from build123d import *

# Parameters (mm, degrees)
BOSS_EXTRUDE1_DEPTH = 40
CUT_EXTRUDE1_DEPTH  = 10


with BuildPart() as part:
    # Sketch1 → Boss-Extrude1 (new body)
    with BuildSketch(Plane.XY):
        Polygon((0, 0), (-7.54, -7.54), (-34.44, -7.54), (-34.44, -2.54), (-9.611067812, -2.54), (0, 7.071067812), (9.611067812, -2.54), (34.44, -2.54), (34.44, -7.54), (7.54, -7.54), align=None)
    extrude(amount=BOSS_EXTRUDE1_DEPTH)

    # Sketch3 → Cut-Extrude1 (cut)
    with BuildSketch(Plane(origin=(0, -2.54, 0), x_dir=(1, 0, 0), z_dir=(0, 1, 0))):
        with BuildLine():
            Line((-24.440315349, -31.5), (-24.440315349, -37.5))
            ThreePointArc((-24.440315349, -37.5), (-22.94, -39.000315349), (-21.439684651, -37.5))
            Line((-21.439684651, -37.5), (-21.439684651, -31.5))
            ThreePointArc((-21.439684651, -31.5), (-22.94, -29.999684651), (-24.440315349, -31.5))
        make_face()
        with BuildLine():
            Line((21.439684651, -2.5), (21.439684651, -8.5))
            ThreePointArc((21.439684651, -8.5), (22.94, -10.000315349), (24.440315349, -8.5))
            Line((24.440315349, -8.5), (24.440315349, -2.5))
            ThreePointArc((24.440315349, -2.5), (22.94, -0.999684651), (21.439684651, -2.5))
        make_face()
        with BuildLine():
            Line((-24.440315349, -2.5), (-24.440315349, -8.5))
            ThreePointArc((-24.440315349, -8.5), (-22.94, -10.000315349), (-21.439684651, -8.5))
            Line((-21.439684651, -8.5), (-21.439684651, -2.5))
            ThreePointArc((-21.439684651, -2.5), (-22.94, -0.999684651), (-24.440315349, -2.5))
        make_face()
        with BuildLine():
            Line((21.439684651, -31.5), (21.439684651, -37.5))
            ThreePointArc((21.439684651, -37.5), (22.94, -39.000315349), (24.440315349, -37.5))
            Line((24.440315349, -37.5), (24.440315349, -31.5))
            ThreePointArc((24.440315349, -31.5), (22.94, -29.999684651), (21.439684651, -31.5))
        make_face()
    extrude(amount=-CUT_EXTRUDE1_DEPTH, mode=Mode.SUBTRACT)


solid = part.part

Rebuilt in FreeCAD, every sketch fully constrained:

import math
import FreeCAD as App
import Part
import Sketcher
Q = App.Units.Quantity

doc = App.newDocument("Part")
body = doc.addObject("PartDesign::Body", "Body")

# Sketch on XY plane
sketch1 = body.newObject("Sketcher::SketchObject", "Sketch")
sketch1.AttachmentSupport = (doc.getObject("XY_Plane"), [""])
sketch1.MapMode = "FlatFace"
sketch1.addGeometry(Part.LineSegment(App.Vector(-8, -8, 0), App.Vector(0, 0, 0)), False)
sketch1.addGeometry(Part.LineSegment(App.Vector(0, 0, 0), App.Vector(8, -8, 0)), False)
sketch1.addGeometry(Part.LineSegment(App.Vector(8, -8, 0), App.Vector(34, -8, 0)), False)
sketch1.addGeometry(Part.LineSegment(App.Vector(34, -8, 0), App.Vector(34, -3, 0)), False)
sketch1.addGeometry(Part.LineSegment(App.Vector(34, -3, 0), App.Vector(10, -3, 0)), False)
sketch1.addGeometry(Part.LineSegment(App.Vector(10, -3, 0), App.Vector(0, 7, 0)), False)
sketch1.addGeometry(Part.LineSegment(App.Vector(0, 7, 0), App.Vector(-10, -3, 0)), False)
sketch1.addGeometry(Part.LineSegment(App.Vector(-10, -3, 0), App.Vector(-34, -3, 0)), False)
sketch1.addGeometry(Part.LineSegment(App.Vector(-34, -3, 0), App.Vector(-34, -8, 0)), False)
sketch1.addGeometry(Part.LineSegment(App.Vector(-34, -8, 0), App.Vector(-8, -8, 0)), False)
sketch1.addConstraint(Sketcher.Constraint("Coincident", 0, 2, 1, 1))
sketch1.addConstraint(Sketcher.Constraint("Coincident", 1, 2, 2, 1))
sketch1.addConstraint(Sketcher.Constraint("Coincident", 2, 2, 3, 1))
sketch1.addConstraint(Sketcher.Constraint("Coincident", 3, 2, 4, 1))
sketch1.addConstraint(Sketcher.Constraint("Coincident", 4, 2, 5, 1))
sketch1.addConstraint(Sketcher.Constraint("Coincident", 5, 2, 6, 1))
sketch1.addConstraint(Sketcher.Constraint("Coincident", 6, 2, 7, 1))
sketch1.addConstraint(Sketcher.Constraint("Coincident", 7, 2, 8, 1))
sketch1.addConstraint(Sketcher.Constraint("Coincident", 8, 2, 9, 1))
sketch1.addConstraint(Sketcher.Constraint("Coincident", 9, 2, 0, 1))
sketch1.addConstraint(Sketcher.Constraint("Horizontal", 2))
sketch1.addConstraint(Sketcher.Constraint("Vertical", 3))
sketch1.addConstraint(Sketcher.Constraint("Horizontal", 4))
sketch1.addConstraint(Sketcher.Constraint("Horizontal", 7))
sketch1.addConstraint(Sketcher.Constraint("Vertical", 8))
sketch1.addConstraint(Sketcher.Constraint("Horizontal", 9))
sketch1.addConstraint(Sketcher.Constraint("Coincident", 0, 2, -1, 1))
sketch1.addConstraint(Sketcher.Constraint("Symmetric", 4, 2, 6, 2, -2))
sketch1.addConstraint(Sketcher.Constraint("Symmetric", 2, 2, 8, 2, -2))
sketch1.addConstraint(Sketcher.Constraint("PointOnObject", 5, 2, -2))
sketch1.addConstraint(Sketcher.Constraint("Perpendicular", 0, 1))
sketch1.addConstraint(Sketcher.Constraint("Parallel", 1, 5))
sketch1.addConstraint(Sketcher.Constraint("Perpendicular", 5, 6))
sketch1.addConstraint(Sketcher.Constraint("DistanceY", 3, 1, 3, 2, Q("5 mm")))
sketch1.addConstraint(Sketcher.Constraint("DistanceX", 2, 1, 2, 2, Q("26.9 mm")))
sketch1.addConstraint(Sketcher.Constraint("DistanceX", -1, 1, 1, 2, Q("7.54 mm")))
sketch1.addConstraint(Sketcher.Constraint("DistanceX", 4, 2, 4, 1, Q("24.828932 mm")))
pad1 = body.newObject("PartDesign::Pad", "Pad")
pad1.Profile = sketch1
pad1.Length = 40

# Sketch on XZ plane
sketch2 = body.newObject("Sketcher::SketchObject", "Sketch001")
sketch2.AttachmentSupport = (doc.getObject("XZ_Plane"), [""])
sketch2.MapMode = "FlatFace"
sketch2.AttachmentOffset = App.Placement(App.Vector(0, 0, 2.54), App.Rotation())
sketch2.addGeometry(Part.LineSegment(App.Vector(-24.4, 31.5, 0), App.Vector(-24.4, 37.5, 0)), False)
sketch2.addGeometry(Part.ArcOfCircle(Part.Circle(App.Vector(-22.9, 37.5, 0), App.Vector(0, 0, 1), 1.5), math.radians(0), math.radians(180)), False)
sketch2.addGeometry(Part.LineSegment(App.Vector(-21.4, 37.5, 0), App.Vector(-21.4, 31.5, 0)), False)
sketch2.addGeometry(Part.ArcOfCircle(Part.Circle(App.Vector(-22.9, 31.5, 0), App.Vector(0, 0, 1), 1.5), math.radians(180), math.radians(360)), False)
sketch2.addGeometry(Part.LineSegment(App.Vector(21.4, 2.5, 0), App.Vector(21.4, 8.5, 0)), False)
sketch2.addGeometry(Part.ArcOfCircle(Part.Circle(App.Vector(22.9, 8.5, 0), App.Vector(0, 0, 1), 1.5), math.radians(0), math.radians(180)), False)
sketch2.addGeometry(Part.LineSegment(App.Vector(24.4, 8.5, 0), App.Vector(24.4, 2.5, 0)), False)
sketch2.addGeometry(Part.ArcOfCircle(Part.Circle(App.Vector(22.9, 2.5, 0), App.Vector(0, 0, 1), 1.5), math.radians(180), math.radians(360)), False)
sketch2.addGeometry(Part.LineSegment(App.Vector(-24.4, 2.5, 0), App.Vector(-24.4, 8.5, 0)), False)
sketch2.addGeometry(Part.ArcOfCircle(Part.Circle(App.Vector(-22.9, 8.5, 0), App.Vector(0, 0, 1), 1.5), math.radians(0), math.radians(180)), False)
sketch2.addGeometry(Part.LineSegment(App.Vector(-21.4, 8.5, 0), App.Vector(-21.4, 2.5, 0)), False)
sketch2.addGeometry(Part.ArcOfCircle(Part.Circle(App.Vector(-22.9, 2.5, 0), App.Vector(0, 0, 1), 1.5), math.radians(180), math.radians(360)), False)
sketch2.addGeometry(Part.LineSegment(App.Vector(21.4, 31.5, 0), App.Vector(21.4, 37.5, 0)), False)
sketch2.addGeometry(Part.ArcOfCircle(Part.Circle(App.Vector(22.9, 37.5, 0), App.Vector(0, 0, 1), 1.5), math.radians(0), math.radians(180)), False)
sketch2.addGeometry(Part.LineSegment(App.Vector(24.4, 37.5, 0), App.Vector(24.4, 31.5, 0)), False)
sketch2.addGeometry(Part.ArcOfCircle(Part.Circle(App.Vector(22.9, 31.5, 0), App.Vector(0, 0, 1), 1.5), math.radians(180), math.radians(360)), False)
sketch2.addConstraint(Sketcher.Constraint("Tangent", 0, 2, 1, 2))
sketch2.addConstraint(Sketcher.Constraint("Tangent", 1, 1, 2, 1))
sketch2.addConstraint(Sketcher.Constraint("Tangent", 2, 2, 3, 2))
sketch2.addConstraint(Sketcher.Constraint("Tangent", 3, 1, 0, 1))
sketch2.addConstraint(Sketcher.Constraint("Tangent", 4, 2, 5, 2))
sketch2.addConstraint(Sketcher.Constraint("Tangent", 5, 1, 6, 1))
sketch2.addConstraint(Sketcher.Constraint("Tangent", 6, 2, 7, 2))
sketch2.addConstraint(Sketcher.Constraint("Tangent", 7, 1, 4, 1))
sketch2.addConstraint(Sketcher.Constraint("Tangent", 8, 2, 9, 2))
sketch2.addConstraint(Sketcher.Constraint("Tangent", 9, 1, 10, 1))
sketch2.addConstraint(Sketcher.Constraint("Tangent", 10, 2, 11, 2))
sketch2.addConstraint(Sketcher.Constraint("Tangent", 11, 1, 8, 1))
sketch2.addConstraint(Sketcher.Constraint("Tangent", 12, 2, 13, 2))
sketch2.addConstraint(Sketcher.Constraint("Tangent", 13, 1, 14, 1))
sketch2.addConstraint(Sketcher.Constraint("Tangent", 14, 2, 15, 2))
sketch2.addConstraint(Sketcher.Constraint("Tangent", 15, 1, 12, 1))
sketch2.addConstraint(Sketcher.Constraint("Vertical", 0))
sketch2.addConstraint(Sketcher.Constraint("Vertical", 2))
sketch2.addConstraint(Sketcher.Constraint("Vertical", 4))
sketch2.addConstraint(Sketcher.Constraint("Vertical", 6))
sketch2.addConstraint(Sketcher.Constraint("Vertical", 8))
sketch2.addConstraint(Sketcher.Constraint("Vertical", 10))
sketch2.addConstraint(Sketcher.Constraint("Vertical", 12))
sketch2.addConstraint(Sketcher.Constraint("Vertical", 14))
sketch2.addConstraint(Sketcher.Constraint("Equal", 3, 5))
sketch2.addConstraint(Sketcher.Constraint("Equal", 7, 9))
sketch2.addConstraint(Sketcher.Constraint("Equal", 11, 13))
sketch2.addConstraint(Sketcher.Constraint("Symmetric", 5, 3, 9, 3, -2))
sketch2.addConstraint(Sketcher.Constraint("Symmetric", 1, 3, 13, 3, -2))
sketch2.addConstraint(Sketcher.Constraint("Horizontal", 7, 3, 11, 3))
sketch2.addConstraint(Sketcher.Constraint("Horizontal", 3, 3, 15, 3))
sketch2.addConstraint(Sketcher.Constraint("Vertical", 3, 3, 9, 3))
sketch2.addConstraint(Sketcher.Constraint("Equal", 2, 4))
sketch2.addConstraint(Sketcher.Constraint("DistanceY", 0, 1, 0, 2, Q("6 mm")))
sketch2.addConstraint(Sketcher.Constraint("DistanceY", 5, 3, 3, 3, Q("23 mm")))
sketch2.addConstraint(Sketcher.Constraint("DistanceY", -1, 1, 1, 3, Q("37.5 mm")))
sketch2.addConstraint(Sketcher.Constraint("DistanceX", 1, 3, -1, 1, Q("22.94 mm")))
sketch2.addConstraint(Sketcher.Constraint("Radius", 1, Q("1.500315 mm")))
pocket1 = body.newObject("PartDesign::Pocket", "Pocket")
pocket1.Profile = sketch2
pocket1.Length = 10
pocket1.Reversed = True

doc.recompute()
